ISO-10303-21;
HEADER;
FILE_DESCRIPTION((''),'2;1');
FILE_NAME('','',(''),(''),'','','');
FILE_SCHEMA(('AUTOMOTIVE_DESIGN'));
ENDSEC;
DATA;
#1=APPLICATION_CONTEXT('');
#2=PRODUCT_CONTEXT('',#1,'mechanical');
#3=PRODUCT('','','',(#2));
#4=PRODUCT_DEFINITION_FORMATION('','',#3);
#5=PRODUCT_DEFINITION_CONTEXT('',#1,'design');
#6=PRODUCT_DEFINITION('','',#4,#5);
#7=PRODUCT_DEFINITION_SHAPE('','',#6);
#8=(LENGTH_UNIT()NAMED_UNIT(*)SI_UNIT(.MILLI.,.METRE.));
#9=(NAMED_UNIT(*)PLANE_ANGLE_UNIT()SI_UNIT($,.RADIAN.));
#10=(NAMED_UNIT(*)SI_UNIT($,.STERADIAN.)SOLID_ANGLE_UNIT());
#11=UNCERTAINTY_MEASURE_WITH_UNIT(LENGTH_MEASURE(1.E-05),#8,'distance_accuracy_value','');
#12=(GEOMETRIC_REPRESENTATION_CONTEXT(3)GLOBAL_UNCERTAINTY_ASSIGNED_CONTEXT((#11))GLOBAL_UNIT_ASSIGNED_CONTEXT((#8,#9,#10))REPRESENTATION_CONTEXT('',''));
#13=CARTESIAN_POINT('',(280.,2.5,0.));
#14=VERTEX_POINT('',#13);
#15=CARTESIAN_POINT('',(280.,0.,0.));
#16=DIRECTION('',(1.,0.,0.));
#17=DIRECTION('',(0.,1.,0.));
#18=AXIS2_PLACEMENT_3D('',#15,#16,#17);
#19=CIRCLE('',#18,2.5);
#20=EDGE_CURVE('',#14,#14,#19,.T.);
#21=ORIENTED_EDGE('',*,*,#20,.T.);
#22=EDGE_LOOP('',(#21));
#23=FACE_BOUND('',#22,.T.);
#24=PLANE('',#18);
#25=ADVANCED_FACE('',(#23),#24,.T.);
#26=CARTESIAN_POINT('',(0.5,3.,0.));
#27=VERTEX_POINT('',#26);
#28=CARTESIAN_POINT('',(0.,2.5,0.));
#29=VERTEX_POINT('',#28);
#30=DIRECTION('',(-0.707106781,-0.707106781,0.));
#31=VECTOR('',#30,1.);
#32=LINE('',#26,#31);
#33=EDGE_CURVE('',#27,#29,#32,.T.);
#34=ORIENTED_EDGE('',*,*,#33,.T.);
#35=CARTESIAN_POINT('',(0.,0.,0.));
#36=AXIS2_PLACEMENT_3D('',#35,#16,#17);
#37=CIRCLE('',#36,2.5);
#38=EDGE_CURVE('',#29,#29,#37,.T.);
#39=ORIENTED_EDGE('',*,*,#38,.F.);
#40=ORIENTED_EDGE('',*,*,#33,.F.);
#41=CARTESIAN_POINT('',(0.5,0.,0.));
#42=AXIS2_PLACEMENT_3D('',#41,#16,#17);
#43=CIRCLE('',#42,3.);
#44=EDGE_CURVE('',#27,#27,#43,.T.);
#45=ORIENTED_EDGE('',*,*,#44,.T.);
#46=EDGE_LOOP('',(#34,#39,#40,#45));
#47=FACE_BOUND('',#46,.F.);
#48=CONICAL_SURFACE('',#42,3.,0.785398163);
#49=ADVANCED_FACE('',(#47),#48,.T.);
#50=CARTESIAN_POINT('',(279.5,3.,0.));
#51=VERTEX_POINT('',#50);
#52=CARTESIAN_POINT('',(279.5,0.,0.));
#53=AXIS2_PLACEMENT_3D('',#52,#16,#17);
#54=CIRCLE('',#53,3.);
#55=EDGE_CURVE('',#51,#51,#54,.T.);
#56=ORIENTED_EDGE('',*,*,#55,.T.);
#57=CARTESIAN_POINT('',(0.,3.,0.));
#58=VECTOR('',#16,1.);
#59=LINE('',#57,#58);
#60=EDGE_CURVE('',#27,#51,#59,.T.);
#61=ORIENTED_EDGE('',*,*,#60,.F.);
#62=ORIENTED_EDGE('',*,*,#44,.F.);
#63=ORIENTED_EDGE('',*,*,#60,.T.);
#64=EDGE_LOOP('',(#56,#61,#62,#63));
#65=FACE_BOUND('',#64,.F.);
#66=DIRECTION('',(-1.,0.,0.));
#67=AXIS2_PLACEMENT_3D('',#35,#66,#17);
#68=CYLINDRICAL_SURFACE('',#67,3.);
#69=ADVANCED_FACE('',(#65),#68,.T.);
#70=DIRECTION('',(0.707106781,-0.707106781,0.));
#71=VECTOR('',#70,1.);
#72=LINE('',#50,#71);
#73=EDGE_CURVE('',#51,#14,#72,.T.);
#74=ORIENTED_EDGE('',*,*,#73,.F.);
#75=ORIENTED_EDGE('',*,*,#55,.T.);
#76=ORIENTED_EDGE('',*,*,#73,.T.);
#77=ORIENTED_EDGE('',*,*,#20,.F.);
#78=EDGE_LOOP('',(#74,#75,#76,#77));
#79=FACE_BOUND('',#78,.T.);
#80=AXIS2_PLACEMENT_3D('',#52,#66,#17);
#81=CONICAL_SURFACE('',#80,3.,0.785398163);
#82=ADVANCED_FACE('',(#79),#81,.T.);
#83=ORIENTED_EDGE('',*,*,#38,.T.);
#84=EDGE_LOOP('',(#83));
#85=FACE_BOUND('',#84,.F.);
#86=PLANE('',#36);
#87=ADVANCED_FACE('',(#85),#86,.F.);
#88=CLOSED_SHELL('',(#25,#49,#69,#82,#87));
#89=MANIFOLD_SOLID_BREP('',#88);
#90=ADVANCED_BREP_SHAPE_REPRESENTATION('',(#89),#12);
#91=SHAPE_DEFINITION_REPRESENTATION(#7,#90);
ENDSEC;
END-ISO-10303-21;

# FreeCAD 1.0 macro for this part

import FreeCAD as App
import Part
import Sketcher


def edges_at(feature, points):
    """Names of the edges that pass closest to the given points."""
    edges = feature.Shape.Edges
    near = lambda p: min(range(len(edges)), key=lambda i: edges[i].distToShape(Part.Vertex(*p))[0])
    return sorted({f"Edge{near(p) + 1}" for p in points})

doc = App.newDocument("Part")
body = doc.addObject("PartDesign::Body", "Body")

sketch1 = body.newObject("Sketcher::SketchObject", "Sketch")
sketch1.AttachmentSupport = (doc.getObject("YZ_Plane"), [""])
sketch1.MapMode = "FlatFace"
sketch1.addGeometry(Part.Circle(App.Vector(0, 0, 0), App.Vector(0, 0, 1), 3), False)
sketch1.addConstraint(Sketcher.Constraint("Coincident", 0, 3, -1, 1))
sketch1.addConstraint(Sketcher.Constraint("Diameter", 0, 6.0))
pad1 = body.newObject("PartDesign::Pad", "Pad")
pad1.Profile = sketch1
pad1.Length = 280
doc.recompute()

chamfer = body.newObject("PartDesign::Chamfer", "Chamfer")
chamfer.Base = (pad1, edges_at(pad1, [(280, -3, 0), (0, -3, 0)]))
chamfer.Size = 0.5

doc.recompute()
